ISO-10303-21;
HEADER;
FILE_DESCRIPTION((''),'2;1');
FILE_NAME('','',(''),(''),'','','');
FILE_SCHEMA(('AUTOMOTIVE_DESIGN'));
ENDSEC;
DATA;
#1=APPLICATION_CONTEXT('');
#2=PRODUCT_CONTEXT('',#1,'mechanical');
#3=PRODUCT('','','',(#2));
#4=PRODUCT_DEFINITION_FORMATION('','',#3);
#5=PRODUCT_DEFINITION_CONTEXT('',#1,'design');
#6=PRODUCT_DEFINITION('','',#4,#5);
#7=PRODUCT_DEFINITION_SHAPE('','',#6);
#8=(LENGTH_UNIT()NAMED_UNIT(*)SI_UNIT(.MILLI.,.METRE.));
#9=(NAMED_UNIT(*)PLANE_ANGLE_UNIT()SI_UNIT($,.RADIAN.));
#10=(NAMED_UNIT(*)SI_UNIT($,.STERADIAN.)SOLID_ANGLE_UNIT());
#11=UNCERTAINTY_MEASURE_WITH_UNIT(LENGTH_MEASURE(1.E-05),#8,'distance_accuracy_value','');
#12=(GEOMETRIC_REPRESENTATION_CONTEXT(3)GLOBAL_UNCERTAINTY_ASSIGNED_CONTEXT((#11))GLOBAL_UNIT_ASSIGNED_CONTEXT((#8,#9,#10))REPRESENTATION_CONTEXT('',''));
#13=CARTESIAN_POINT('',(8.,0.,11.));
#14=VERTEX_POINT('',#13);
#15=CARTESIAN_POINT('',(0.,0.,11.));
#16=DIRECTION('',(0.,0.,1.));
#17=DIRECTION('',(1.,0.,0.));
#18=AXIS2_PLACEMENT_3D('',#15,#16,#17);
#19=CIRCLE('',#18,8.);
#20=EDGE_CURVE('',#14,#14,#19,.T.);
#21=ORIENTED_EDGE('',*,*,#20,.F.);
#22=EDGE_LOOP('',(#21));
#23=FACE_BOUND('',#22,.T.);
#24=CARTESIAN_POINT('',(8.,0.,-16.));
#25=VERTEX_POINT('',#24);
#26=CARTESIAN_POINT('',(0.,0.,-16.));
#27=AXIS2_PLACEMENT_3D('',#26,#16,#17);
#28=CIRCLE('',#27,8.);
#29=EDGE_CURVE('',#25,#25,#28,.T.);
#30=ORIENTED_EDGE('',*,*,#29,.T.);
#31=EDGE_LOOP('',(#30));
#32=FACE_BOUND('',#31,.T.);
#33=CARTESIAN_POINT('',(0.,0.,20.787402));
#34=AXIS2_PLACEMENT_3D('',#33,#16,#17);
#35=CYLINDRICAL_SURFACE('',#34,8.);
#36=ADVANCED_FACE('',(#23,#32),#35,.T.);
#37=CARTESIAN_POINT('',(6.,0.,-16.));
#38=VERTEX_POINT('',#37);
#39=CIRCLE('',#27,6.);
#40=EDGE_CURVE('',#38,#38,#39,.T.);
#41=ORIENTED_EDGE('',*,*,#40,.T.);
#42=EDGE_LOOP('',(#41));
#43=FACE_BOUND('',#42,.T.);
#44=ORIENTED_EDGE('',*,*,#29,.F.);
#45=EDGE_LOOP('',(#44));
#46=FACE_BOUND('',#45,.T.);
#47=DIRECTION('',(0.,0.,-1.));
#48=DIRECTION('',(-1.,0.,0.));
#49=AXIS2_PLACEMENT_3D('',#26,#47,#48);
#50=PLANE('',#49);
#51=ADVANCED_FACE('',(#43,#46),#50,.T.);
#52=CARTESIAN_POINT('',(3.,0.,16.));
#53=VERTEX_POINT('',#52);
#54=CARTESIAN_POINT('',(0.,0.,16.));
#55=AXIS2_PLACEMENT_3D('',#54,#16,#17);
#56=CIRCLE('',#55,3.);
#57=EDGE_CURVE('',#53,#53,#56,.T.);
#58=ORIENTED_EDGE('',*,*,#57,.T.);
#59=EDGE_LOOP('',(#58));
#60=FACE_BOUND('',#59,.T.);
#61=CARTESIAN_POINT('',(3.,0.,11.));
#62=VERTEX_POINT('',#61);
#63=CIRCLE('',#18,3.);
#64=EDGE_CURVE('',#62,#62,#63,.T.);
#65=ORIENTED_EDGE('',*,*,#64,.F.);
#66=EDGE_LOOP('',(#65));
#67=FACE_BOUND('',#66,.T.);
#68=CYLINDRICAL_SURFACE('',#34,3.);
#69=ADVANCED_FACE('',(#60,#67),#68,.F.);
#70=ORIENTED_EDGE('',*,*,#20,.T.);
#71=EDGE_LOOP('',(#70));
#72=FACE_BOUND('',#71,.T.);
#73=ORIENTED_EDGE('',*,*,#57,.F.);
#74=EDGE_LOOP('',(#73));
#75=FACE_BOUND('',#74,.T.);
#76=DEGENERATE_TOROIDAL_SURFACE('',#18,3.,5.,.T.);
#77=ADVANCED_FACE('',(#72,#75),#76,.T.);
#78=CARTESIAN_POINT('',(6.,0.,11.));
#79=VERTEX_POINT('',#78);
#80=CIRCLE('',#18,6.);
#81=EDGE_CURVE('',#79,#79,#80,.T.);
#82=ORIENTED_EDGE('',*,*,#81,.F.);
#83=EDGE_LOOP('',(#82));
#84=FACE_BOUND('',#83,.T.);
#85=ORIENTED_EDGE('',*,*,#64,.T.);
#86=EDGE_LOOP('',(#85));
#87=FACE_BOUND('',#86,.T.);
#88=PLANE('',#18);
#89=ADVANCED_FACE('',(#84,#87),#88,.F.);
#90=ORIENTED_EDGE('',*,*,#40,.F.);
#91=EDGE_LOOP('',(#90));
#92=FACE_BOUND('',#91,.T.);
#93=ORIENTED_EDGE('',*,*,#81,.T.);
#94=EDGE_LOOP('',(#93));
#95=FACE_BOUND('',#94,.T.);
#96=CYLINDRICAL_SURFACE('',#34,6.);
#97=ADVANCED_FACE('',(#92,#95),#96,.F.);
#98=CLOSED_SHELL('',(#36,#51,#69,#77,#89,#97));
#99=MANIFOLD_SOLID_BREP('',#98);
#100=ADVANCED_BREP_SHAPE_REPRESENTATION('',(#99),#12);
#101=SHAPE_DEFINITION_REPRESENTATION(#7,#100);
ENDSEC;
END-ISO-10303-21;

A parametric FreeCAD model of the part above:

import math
import FreeCAD as App
import Part
import Sketcher
from FreeCAD import Vector
Q = App.Units.Quantity

doc = App.newDocument("Part")
body = doc.addObject("PartDesign::Body", "Body")

# Sketch on YZ plane
sketch1 = doc.addObject("Sketcher::SketchObject", "Sketch")
body.addObject(sketch1)
sketch1.AttachmentSupport = (doc.YZ_Plane, [""])
sketch1.MapMode = "FlatFace"
sketch1.addGeometry([
    Part.ArcOfCircle(Part.Circle(Vector(3, 11, 0), Vector(0, 0, 1), 5), math.radians(0), math.radians(90)),  # 0
    Part.LineSegment(Vector(3, 16, 0), Vector(3, 11, 0)),  # 1
    Part.LineSegment(Vector(3, 11, 0), Vector(6, 11, 0)),  # 2
    Part.LineSegment(Vector(6, 11, 0), Vector(6, -16, 0)),  # 3
    Part.LineSegment(Vector(6, -16, 0), Vector(8, -16, 0)),  # 4
    Part.LineSegment(Vector(8, -16, 0), Vector(8, 11, 0)),  # 5
], False)
sketch1.addConstraint([
    Sketcher.Constraint("Coincident", 0, 2, 1, 1),
    Sketcher.Constraint("Coincident", 1, 2, 2, 1),
    Sketcher.Constraint("Coincident", 2, 2, 3, 1),
    Sketcher.Constraint("Coincident", 3, 2, 4, 1),
    Sketcher.Constraint("Coincident", 4, 2, 5, 1),
    Sketcher.Constraint("Tangent", 5, 2, 0, 1),
    Sketcher.Constraint("Vertical", 1),
    Sketcher.Constraint("Horizontal", 2),
    Sketcher.Constraint("Vertical", 3),
    Sketcher.Constraint("Horizontal", 4),
    Sketcher.Constraint("Vertical", 5),
    Sketcher.Constraint("Coincident", 1, 2, 0, 3),
    Sketcher.Constraint("Radius", 0, Q("5 mm")),
    Sketcher.Constraint("DistanceX", 2, 1, 2, 2, Q("3 mm")),
    Sketcher.Constraint("DistanceY", 3, 2, 3, 1, Q("27 mm")),
    Sketcher.Constraint("DistanceX", -1, 1, 0, 3, Q("3 mm")),
    Sketcher.Constraint("DistanceY", -1, 1, 0, 3, Q("11 mm")),
])
revolution = doc.addObject("PartDesign::Revolution", "Revolution")
body.addObject(revolution)
revolution.Profile = sketch1
revolution.ReferenceAxis = (sketch1, ["V_Axis"])
revolution.Angle = 360

doc.recompute()
